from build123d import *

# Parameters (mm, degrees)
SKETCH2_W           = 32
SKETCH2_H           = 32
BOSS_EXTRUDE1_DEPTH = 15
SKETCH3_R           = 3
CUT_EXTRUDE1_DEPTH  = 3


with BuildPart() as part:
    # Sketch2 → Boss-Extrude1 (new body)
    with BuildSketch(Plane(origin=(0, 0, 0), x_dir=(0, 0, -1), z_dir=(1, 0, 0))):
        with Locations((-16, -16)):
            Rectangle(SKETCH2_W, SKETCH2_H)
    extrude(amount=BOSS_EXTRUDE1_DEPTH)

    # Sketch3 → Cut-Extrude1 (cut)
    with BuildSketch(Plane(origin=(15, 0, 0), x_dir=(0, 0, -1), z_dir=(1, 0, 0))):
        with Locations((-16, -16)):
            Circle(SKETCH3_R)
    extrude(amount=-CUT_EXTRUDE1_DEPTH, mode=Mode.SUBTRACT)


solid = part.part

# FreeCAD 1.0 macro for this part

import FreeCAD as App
import Part
import Sketcher

V = App.Vector
Q = App.Units.Quantity

doc = App.newDocument("Part")
body = doc.addObject("PartDesign::Body", "Body")

# Sketch on YZ plane
sketch1 = body.newObject("Sketcher::SketchObject", "Sketch")
sketch1.AttachmentSupport = (doc.getObject("YZ_Plane"), [""])
sketch1.MapMode = "FlatFace"
sketch1.addGeometry([
    Part.LineSegment(V(0, 32, 0), V(-32, 32, 0)),
    Part.LineSegment(V(-32, 32, 0), V(-32, 0, 0)),
    Part.LineSegment(V(-32, 0, 0), V(0, 0, 0)),
    Part.LineSegment(V(0, 0, 0), V(0, 32, 0)),
], False)
sketch1.addConstraint([
    Sketcher.Constraint("Coincident", 0, 2, 1, 1),
    Sketcher.Constraint("Coincident", 1, 2, 2, 1),
    Sketcher.Constraint("Coincident", 2, 2, 3, 1),
    Sketcher.Constraint("Coincident", 3, 2, 0, 1),
    Sketcher.Constraint("Horizontal", 0),
    Sketcher.Constraint("Vertical", 1),
    Sketcher.Constraint("Horizontal", 2),
    Sketcher.Constraint("Vertical", 3),
    Sketcher.Constraint("Coincident", 2, 2, -1, 1),
    Sketcher.Constraint("Equal", 2, 1),
    Sketcher.Constraint("DistanceX", 0, 2, 0, 1, Q("32 mm")),
])
pad1 = body.newObject("PartDesign::Pad", "Pad")
pad1.Profile = sketch1
pad1.Length = 15

# Sketch on YZ plane
sketch2 = body.newObject("Sketcher::SketchObject", "Sketch001")
sketch2.AttachmentSupport = (doc.getObject("YZ_Plane"), [""])
sketch2.MapMode = "FlatFace"
sketch2.AttachmentOffset = App.Placement(V(0, 0, 15), App.Rotation())
sketch2.addGeometry(Part.Circle(V(-16, 16, 0), V(0, 0, 1), 3), False)
sketch2.addConstraint([
    Sketcher.Constraint("Diameter", 0, Q("6 mm")),
    Sketcher.Constraint("DistanceX", 0, 3, -1, 1, Q("16 mm")),
    Sketcher.Constraint("DistanceY", -1, 1, 0, 3, Q("16 mm")),
])
pocket1 = body.newObject("PartDesign::Pocket", "Pocket")
pocket1.Profile = sketch2
pocket1.Length = 3

doc.recompute()
